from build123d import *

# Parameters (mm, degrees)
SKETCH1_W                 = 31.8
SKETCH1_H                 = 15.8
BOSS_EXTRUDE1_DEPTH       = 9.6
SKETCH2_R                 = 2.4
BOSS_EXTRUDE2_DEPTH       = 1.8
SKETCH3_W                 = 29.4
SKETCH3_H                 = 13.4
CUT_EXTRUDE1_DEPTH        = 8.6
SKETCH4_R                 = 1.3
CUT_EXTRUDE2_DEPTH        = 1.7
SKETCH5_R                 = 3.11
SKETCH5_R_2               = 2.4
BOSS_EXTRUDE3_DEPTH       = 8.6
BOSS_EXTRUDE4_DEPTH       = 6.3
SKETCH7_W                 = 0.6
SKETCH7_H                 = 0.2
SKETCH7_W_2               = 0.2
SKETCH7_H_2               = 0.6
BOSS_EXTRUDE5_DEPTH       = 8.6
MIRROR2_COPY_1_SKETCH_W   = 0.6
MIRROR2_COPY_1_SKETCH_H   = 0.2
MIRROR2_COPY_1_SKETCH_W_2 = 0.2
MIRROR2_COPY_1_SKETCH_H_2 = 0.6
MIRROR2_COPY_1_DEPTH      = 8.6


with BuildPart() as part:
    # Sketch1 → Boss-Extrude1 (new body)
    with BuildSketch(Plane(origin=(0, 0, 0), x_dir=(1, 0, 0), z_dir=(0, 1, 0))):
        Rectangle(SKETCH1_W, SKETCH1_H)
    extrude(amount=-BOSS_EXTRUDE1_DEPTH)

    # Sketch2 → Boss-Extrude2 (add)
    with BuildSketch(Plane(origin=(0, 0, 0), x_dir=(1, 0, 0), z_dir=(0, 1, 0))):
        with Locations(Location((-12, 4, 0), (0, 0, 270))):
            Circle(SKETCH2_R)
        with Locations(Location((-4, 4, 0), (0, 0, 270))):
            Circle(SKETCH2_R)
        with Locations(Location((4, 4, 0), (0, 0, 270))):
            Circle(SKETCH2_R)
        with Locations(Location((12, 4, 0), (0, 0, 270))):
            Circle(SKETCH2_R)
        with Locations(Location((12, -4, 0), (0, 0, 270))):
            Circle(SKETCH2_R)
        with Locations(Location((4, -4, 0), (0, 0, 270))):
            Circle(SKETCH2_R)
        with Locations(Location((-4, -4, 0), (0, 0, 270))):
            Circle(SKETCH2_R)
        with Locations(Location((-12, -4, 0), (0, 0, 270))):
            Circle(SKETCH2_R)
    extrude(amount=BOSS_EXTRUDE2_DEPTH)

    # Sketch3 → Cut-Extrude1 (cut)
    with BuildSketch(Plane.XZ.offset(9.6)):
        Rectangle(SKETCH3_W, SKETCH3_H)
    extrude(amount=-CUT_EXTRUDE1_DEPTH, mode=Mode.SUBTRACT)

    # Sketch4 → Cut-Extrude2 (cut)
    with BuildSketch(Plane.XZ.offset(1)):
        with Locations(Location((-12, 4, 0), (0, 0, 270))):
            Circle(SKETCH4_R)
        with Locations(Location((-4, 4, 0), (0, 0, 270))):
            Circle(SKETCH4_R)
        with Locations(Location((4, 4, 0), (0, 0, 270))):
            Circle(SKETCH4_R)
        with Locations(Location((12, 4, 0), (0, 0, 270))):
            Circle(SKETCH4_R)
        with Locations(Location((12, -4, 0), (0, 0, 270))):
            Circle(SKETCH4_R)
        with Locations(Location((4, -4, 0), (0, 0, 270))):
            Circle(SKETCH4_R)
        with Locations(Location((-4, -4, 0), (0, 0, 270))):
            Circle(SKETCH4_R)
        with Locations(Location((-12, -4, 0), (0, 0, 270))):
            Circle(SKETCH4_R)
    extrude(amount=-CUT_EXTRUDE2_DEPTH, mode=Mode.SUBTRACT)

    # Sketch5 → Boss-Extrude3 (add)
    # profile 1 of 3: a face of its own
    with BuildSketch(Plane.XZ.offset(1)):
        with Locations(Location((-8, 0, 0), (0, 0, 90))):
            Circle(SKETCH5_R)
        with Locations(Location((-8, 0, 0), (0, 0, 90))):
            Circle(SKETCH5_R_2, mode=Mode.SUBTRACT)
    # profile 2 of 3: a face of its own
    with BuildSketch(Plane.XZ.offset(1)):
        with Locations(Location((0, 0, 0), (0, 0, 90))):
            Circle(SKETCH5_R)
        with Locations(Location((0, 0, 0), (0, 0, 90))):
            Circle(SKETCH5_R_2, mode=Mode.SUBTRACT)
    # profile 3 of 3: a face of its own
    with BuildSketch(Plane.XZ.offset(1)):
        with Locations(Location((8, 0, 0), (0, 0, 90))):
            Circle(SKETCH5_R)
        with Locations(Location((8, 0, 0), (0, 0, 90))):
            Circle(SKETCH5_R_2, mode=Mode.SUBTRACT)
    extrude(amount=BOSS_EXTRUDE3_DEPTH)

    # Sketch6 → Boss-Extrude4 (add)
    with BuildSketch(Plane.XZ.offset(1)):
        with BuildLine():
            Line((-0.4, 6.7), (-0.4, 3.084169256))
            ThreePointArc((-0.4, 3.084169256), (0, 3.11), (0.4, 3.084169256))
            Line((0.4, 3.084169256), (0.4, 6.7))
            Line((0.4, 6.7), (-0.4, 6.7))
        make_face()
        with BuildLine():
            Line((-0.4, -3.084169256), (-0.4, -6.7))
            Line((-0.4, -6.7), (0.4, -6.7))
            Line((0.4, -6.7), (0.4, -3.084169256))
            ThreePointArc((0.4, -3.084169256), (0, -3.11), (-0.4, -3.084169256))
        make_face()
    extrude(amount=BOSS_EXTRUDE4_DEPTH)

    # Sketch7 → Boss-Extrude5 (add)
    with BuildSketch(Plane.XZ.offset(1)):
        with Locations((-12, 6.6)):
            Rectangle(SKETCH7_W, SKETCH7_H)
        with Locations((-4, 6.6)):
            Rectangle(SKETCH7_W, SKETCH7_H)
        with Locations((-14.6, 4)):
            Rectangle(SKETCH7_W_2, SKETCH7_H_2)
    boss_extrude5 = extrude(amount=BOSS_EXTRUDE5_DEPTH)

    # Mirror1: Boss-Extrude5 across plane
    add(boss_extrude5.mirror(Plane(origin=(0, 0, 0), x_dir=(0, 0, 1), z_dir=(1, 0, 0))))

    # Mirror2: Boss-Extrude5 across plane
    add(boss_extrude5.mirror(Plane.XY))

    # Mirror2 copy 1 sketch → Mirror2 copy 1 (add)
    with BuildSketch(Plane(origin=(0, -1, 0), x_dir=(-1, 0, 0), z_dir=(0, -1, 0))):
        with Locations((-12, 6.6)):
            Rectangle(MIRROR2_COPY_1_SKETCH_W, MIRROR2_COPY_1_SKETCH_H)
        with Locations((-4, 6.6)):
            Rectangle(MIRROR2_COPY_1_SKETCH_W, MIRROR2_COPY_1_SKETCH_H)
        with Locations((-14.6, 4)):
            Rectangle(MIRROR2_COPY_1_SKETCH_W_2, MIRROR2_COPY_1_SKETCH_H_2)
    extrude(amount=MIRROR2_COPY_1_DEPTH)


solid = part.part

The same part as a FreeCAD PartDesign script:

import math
import FreeCAD as App
import Part
import Sketcher
from FreeCAD import Vector
Q = App.Units.Quantity

doc = App.newDocument("Part")
body = doc.addObject("PartDesign::Body", "Body")

# Sketch on XZ plane
sketch1 = body.newObject("Sketcher::SketchObject", "Sketch")
sketch1.AttachmentSupport = (doc.getObject("XZ_Plane"), [""])
sketch1.MapMode = "FlatFace"
sketch1.addGeometry([
    Part.LineSegment(Vector(-16, -8, 0), Vector(-16, 8, 0)),
    Part.LineSegment(Vector(-16, 8, 0), Vector(16, 8, 0)),
    Part.LineSegment(Vector(16, 8, 0), Vector(16, -8, 0)),
    Part.LineSegment(Vector(16, -8, 0), Vector(-16, -8, 0)),
], False)
sketch1.addConstraint([
    Sketcher.Constraint("Coincident", 0, 2, 1, 1),
    Sketcher.Constraint("Coincident", 1, 2, 2, 1),
    Sketcher.Constraint("Coincident", 2, 2, 3, 1),
    Sketcher.Constraint("Coincident", 3, 2, 0, 1),
    Sketcher.Constraint("Vertical", 0),
    Sketcher.Constraint("Horizontal", 1),
    Sketcher.Constraint("Vertical", 2),
    Sketcher.Constraint("Horizontal", 3),
    Sketcher.Constraint("Symmetric", 0, 2, 2, 2, -1, 1),
    Sketcher.Constraint("DistanceX", 1, 1, 1, 2, Q("31.8 mm")),
    Sketcher.Constraint("DistanceY", 0, 1, 0, 2, Q("15.8 mm")),
])
pad1 = body.newObject("PartDesign::Pad", "Pad")
pad1.Profile = sketch1
pad1.Length = 9.6

# Sketch on XZ plane
sketch2 = body.newObject("Sketcher::SketchObject", "Sketch001")
sketch2.AttachmentSupport = (doc.getObject("XZ_Plane"), [""])
sketch2.MapMode = "FlatFace"
sketch2.addGeometry([
    Part.Circle(Vector(-12, -4, 0), Vector(0, 0, 1), 2.4),  # 0
    Part.Circle(Vector(-4, -4, 0), Vector(0, 0, 1), 2.4),  # 1
    Part.Circle(Vector(4, -4, 0), Vector(0, 0, 1), 2.4),  # 2
    Part.Circle(Vector(12, -4, 0), Vector(0, 0, 1), 2.4),  # 3
    Part.Circle(Vector(12, 4, 0), Vector(0, 0, 1), 2.4),  # 4
    Part.Circle(Vector(4, 4, 0), Vector(0, 0, 1), 2.4),  # 5
    Part.Circle(Vector(-4, 4, 0), Vector(0, 0, 1), 2.4),  # 6
    Part.Circle(Vector(-12, 4, 0), Vector(0, 0, 1), 2.4),  # 7
], False)
sketch2.addConstraint([
    Sketcher.Constraint("Equal", 0, 1),
    Sketcher.Constraint("Equal", 1, 2),
    Sketcher.Constraint("Equal", 2, 3),
    Sketcher.Constraint("Equal", 3, 4),
    Sketcher.Constraint("Equal", 4, 5),
    Sketcher.Constraint("Equal", 5, 6),
    Sketcher.Constraint("Equal", 6, 7),
    Sketcher.Constraint("Symmetric", 0, 3, 4, 3, -1, 1),
    Sketcher.Constraint("Symmetric", 1, 3, 5, 3, -1, 1),
    Sketcher.Constraint("Symmetric", 2, 3, 6, 3, -1, 1),
    Sketcher.Constraint("Symmetric", 3, 3, 7, 3, -1, 1),
    Sketcher.Constraint("Symmetric", 1, 3, 2, 3, -2),
    Sketcher.Constraint("Symmetric", 0, 3, 3, 3, -2),
    Sketcher.Constraint("Horizontal", 0, 3, 1, 3),
    Sketcher.Constraint("Diameter", 0, Q("4.8 mm")),
    Sketcher.Constraint("DistanceX", 0, 3, -1, 1, Q("12 mm")),
    Sketcher.Constraint("DistanceY", 0, 3, -1, 1, Q("4 mm")),
    Sketcher.Constraint("DistanceX", 1, 3, -1, 1, Q("4 mm")),
])
pad2 = body.newObject("PartDesign::Pad", "Pad001")
pad2.Profile = sketch2
pad2.Length = 1.8
pad2.Reversed = True

# Sketch on XZ plane
sketch3 = body.newObject("Sketcher::SketchObject", "Sketch002")
sketch3.AttachmentSupport = (doc.getObject("XZ_Plane"), [""])
sketch3.MapMode = "FlatFace"
sketch3.AttachmentOffset = App.Placement(Vector(0, 0, 9.6), App.Rotation())
sketch3.addGeometry([
    Part.LineSegment(Vector(-15, 7, 0), Vector(-15, -7, 0)),
    Part.LineSegment(Vector(-15, -7, 0), Vector(15, -7, 0)),
    Part.LineSegment(Vector(15, -7, 0), Vector(15, 7, 0)),
    Part.LineSegment(Vector(15, 7, 0), Vector(-15, 7, 0)),
], False)
sketch3.addConstraint([
    Sketcher.Constraint("Coincident", 0, 2, 1, 1),
    Sketcher.Constraint("Coincident", 1, 2, 2, 1),
    Sketcher.Constraint("Coincident", 2, 2, 3, 1),
    Sketcher.Constraint("Coincident", 3, 2, 0, 1),
    Sketcher.Constraint("Vertical", 0),
    Sketcher.Constraint("Horizontal", 1),
    Sketcher.Constraint("Vertical", 2),
    Sketcher.Constraint("Horizontal", 3),
    Sketcher.Constraint("Symmetric", 0, 2, 2, 2, -1, 1),
    Sketcher.Constraint("DistanceX", 1, 1, 1, 2, Q("29.4 mm")),
    Sketcher.Constraint("DistanceY", 0, 2, 0, 1, Q("13.4 mm")),
])
pocket1 = body.newObject("PartDesign::Pocket", "Pocket")
pocket1.Profile = sketch3
pocket1.Length = 8.6

# Sketch on XZ plane
sketch4 = body.newObject("Sketcher::SketchObject", "Sketch003")
sketch4.AttachmentSupport = (doc.getObject("XZ_Plane"), [""])
sketch4.MapMode = "FlatFace"
sketch4.AttachmentOffset = App.Placement(Vector(0, 0, 1), App.Rotation())
sketch4.addGeometry([
    Part.Circle(Vector(-12, 4, 0), Vector(0, 0, 1), 1.3),  # 0
    Part.Circle(Vector(-4, 4, 0), Vector(0, 0, 1), 1.3),  # 1
    Part.Circle(Vector(4, 4, 0), Vector(0, 0, 1), 1.3),  # 2
    Part.Circle(Vector(12, 4, 0), Vector(0, 0, 1), 1.3),  # 3
    Part.Circle(Vector(12, -4, 0), Vector(0, 0, 1), 1.3),  # 4
    Part.Circle(Vector(4, -4, 0), Vector(0, 0, 1), 1.3),  # 5
    Part.Circle(Vector(-4, -4, 0), Vector(0, 0, 1), 1.3),  # 6
    Part.Circle(Vector(-12, -4, 0), Vector(0, 0, 1), 1.3),  # 7
], False)
sketch4.addConstraint([
    Sketcher.Constraint("Equal", 0, 1),
    Sketcher.Constraint("Equal", 1, 2),
    Sketcher.Constraint("Equal", 2, 3),
    Sketcher.Constraint("Equal", 3, 4),
    Sketcher.Constraint("Equal", 4, 5),
    Sketcher.Constraint("Equal", 5, 6),
    Sketcher.Constraint("Equal", 6, 7),
    Sketcher.Constraint("Symmetric", 0, 3, 4, 3, -1, 1),
    Sketcher.Constraint("Symmetric", 1, 3, 5, 3, -1, 1),
    Sketcher.Constraint("Symmetric", 2, 3, 6, 3, -1, 1),
    Sketcher.Constraint("Symmetric", 3, 3, 7, 3, -1, 1),
    Sketcher.Constraint("Symmetric", 1, 3, 2, 3, -2),
    Sketcher.Constraint("Symmetric", 0, 3, 3, 3, -2),
    Sketcher.Constraint("Horizontal", 0, 3, 1, 3),
    Sketcher.Constraint("Diameter", 0, Q("2.6 mm")),
    Sketcher.Constraint("DistanceX", 0, 3, -1, 1, Q("12 mm")),
    Sketcher.Constraint("DistanceY", -1, 1, 0, 3, Q("4 mm")),
    Sketcher.Constraint("DistanceX", 1, 3, -1, 1, Q("4 mm")),
])
pocket2 = body.newObject("PartDesign::Pocket", "Pocket001")
pocket2.Profile = sketch4
pocket2.Length = 1.7

# Sketch on XZ plane
sketch5 = body.newObject("Sketcher::SketchObject", "Sketch004")
sketch5.AttachmentSupport = (doc.getObject("XZ_Plane"), [""])
sketch5.MapMode = "FlatFace"
sketch5.AttachmentOffset = App.Placement(Vector(0, 0, 1), App.Rotation())
sketch5.addGeometry([
    Part.Circle(Vector(-8, 0, 0), Vector(0, 0, 1), 3.1),  # 0
    Part.Circle(Vector(-8, 0, 0), Vector(0, 0, 1), 2.4),  # 1
    Part.Circle(Vector(0, 0, 0), Vector(0, 0, 1), 3.1),  # 2
    Part.Circle(Vector(0, 0, 0), Vector(0, 0, 1), 2.4),  # 3
    Part.Circle(Vector(8, 0, 0), Vector(0, 0, 1), 3.1),  # 4
    Part.Circle(Vector(8, 0, 0), Vector(0, 0, 1), 2.4),  # 5
], False)
sketch5.addConstraint([
    Sketcher.Constraint("Coincident", 2, 3, -1, 1),
    Sketcher.Constraint("Coincident", 3, 3, -1, 1),
    Sketcher.Constraint("Coincident", 1, 3, 0, 3),
    Sketcher.Constraint("Coincident", 5, 3, 4, 3),
    Sketcher.Constraint("Equal", 0, 2),
    Sketcher.Constraint("Equal", 1, 3),
    Sketcher.Constraint("Equal", 2, 4),
    Sketcher.Constraint("Equal", 3, 5),
    Sketcher.Constraint("Symmetric", 0, 3, 4, 3, -1, 1),
    Sketcher.Constraint("PointOnObject", 0, 3, -1),
    Sketcher.Constraint("Diameter", 1, Q("4.8 mm")),
    Sketcher.Constraint("Diameter", 0, Q("6.22 mm")),
    Sketcher.Constraint("DistanceX", 0, 3, -1, 1, Q("8 mm")),
])
pad3 = body.newObject("PartDesign::Pad", "Pad002")
pad3.Profile = sketch5
pad3.Length = 8.6

# Sketch on XZ plane
sketch6 = body.newObject("Sketcher::SketchObject", "Sketch005")
sketch6.AttachmentSupport = (doc.getObject("XZ_Plane"), [""])
sketch6.MapMode = "FlatFace"
sketch6.AttachmentOffset = App.Placement(Vector(0, 0, 1), App.Rotation())
sketch6.addGeometry([
    Part.LineSegment(Vector(-0.4, 6.7, 0), Vector(-0.4, 3.1, 0)),  # 0
    Part.ArcOfCircle(Part.Circle(Vector(0, 0, 0), Vector(0, 0, 1), 3.1), math.radians(82.61), math.radians(97.39)),  # 1
    Part.LineSegment(Vector(0.4, 3.1, 0), Vector(0.4, 6.7, 0)),  # 2
    Part.LineSegment(Vector(0.4, 6.7, 0), Vector(-0.4, 6.7, 0)),  # 3
    Part.LineSegment(Vector(-0.4, -3.1, 0), Vector(-0.4, -6.7, 0)),  # 4
    Part.LineSegment(Vector(-0.4, -6.7, 0), Vector(0.4, -6.7, 0)),  # 5
    Part.LineSegment(Vector(0.4, -6.7, 0), Vector(0.4, -3.1, 0)),  # 6
    Part.ArcOfCircle(Part.Circle(Vector(0, 0, 0), Vector(0, 0, 1), 3.1), math.radians(-97.39), math.radians(-82.61)),  # 7
], False)
sketch6.addConstraint([
    Sketcher.Constraint("Coincident", 0, 2, 1, 2),
    Sketcher.Constraint("Coincident", 1, 1, 2, 1),
    Sketcher.Constraint("Coincident", 2, 2, 3, 1),
    Sketcher.Constraint("Coincident", 3, 2, 0, 1),
    Sketcher.Constraint("Coincident", 4, 2, 5, 1),
    Sketcher.Constraint("Coincident", 5, 2, 6, 1),
    Sketcher.Constraint("Coincident", 6, 2, 7, 2),
    Sketcher.Constraint("Coincident", 7, 1, 4, 1),
    Sketcher.Constraint("Vertical", 0),
    Sketcher.Constraint("Vertical", 2),
    Sketcher.Constraint("Horizontal", 3),
    Sketcher.Constraint("Vertical", 4),
    Sketcher.Constraint("Horizontal", 5),
    Sketcher.Constraint("Vertical", 6),
    Sketcher.Constraint("Coincident", 1, 3, -1, 1),
    Sketcher.Constraint("Coincident", 7, 3, -1, 1),
    Sketcher.Constraint("Equal", 1, 7),
    Sketcher.Constraint("Symmetric", 2, 2, 4, 2, -1, 1),
    Sketcher.Constraint("Horizontal", 0, 2, 1, 1),
    Sketcher.Constraint("Horizontal", 6, 2, 7, 1),
    Sketcher.Constraint("Radius", 1, Q("3.11 mm")),
    Sketcher.Constraint("DistanceX", 3, 2, 3, 1, Q("0.8 mm")),
    Sketcher.Constraint("DistanceY", -1, 1, 2, 2, Q("6.7 mm")),
])
pad4 = body.newObject("PartDesign::Pad", "Pad003")
pad4.Profile = sketch6
pad4.Length = 6.3

# Sketch on XZ plane
sketch7 = body.newObject("Sketcher::SketchObject", "Sketch006")
sketch7.AttachmentSupport = (doc.getObject("XZ_Plane"), [""])
sketch7.MapMode = "FlatFace"
sketch7.AttachmentOffset = App.Placement(Vector(0, 0, 1), App.Rotation())
sketch7.addGeometry([
    Part.LineSegment(Vector(-12.3, 6.7, 0), Vector(-12.3, 6.5, 0)),  # 0
    Part.LineSegment(Vector(-12.3, 6.5, 0), Vector(-11.7, 6.5, 0)),  # 1
    Part.LineSegment(Vector(-11.7, 6.5, 0), Vector(-11.7, 6.7, 0)),  # 2
    Part.LineSegment(Vector(-11.7, 6.7, 0), Vector(-12.3, 6.7, 0)),  # 3
    Part.LineSegment(Vector(-4.3, 6.7, 0), Vector(-4.3, 6.5, 0)),  # 4
    Part.LineSegment(Vector(-4.3, 6.5, 0), Vector(-3.7, 6.5, 0)),  # 5
    Part.LineSegment(Vector(-3.7, 6.5, 0), Vector(-3.7, 6.7, 0)),  # 6
    Part.LineSegment(Vector(-3.7, 6.7, 0), Vector(-4.3, 6.7, 0)),  # 7
    Part.LineSegment(Vector(-14.7, 4.3, 0), Vector(-14.7, 3.7, 0)),  # 8
    Part.LineSegment(Vector(-14.7, 3.7, 0), Vector(-14.5, 3.7, 0)),  # 9
    Part.LineSegment(Vector(-14.5, 3.7, 0), Vector(-14.5, 4.3, 0)),  # 10
    Part.LineSegment(Vector(-14.5, 4.3, 0), Vector(-14.7, 4.3, 0)),  # 11
], False)
sketch7.addConstraint([
    Sketcher.Constraint("Coincident", 0, 2, 1, 1),
    Sketcher.Constraint("Coincident", 1, 2, 2, 1),
    Sketcher.Constraint("Coincident", 2, 2, 3, 1),
    Sketcher.Constraint("Coincident", 3, 2, 0, 1),
    Sketcher.Constraint("Coincident", 4, 2, 5, 1),
    Sketcher.Constraint("Coincident", 5, 2, 6, 1),
    Sketcher.Constraint("Coincident", 6, 2, 7, 1),
    Sketcher.Constraint("Coincident", 7, 2, 4, 1),
    Sketcher.Constraint("Coincident", 8, 2, 9, 1),
    Sketcher.Constraint("Coincident", 9, 2, 10, 1),
    Sketcher.Constraint("Coincident", 10, 2, 11, 1),
    Sketcher.Constraint("Coincident", 11, 2, 8, 1),
    Sketcher.Constraint("Vertical", 0),
    Sketcher.Constraint("Horizontal", 1),
    Sketcher.Constraint("Vertical", 2),
    Sketcher.Constraint("Horizontal", 3),
    Sketcher.Constraint("Vertical", 4),
    Sketcher.Constraint("Horizontal", 5),
    Sketcher.Constraint("Vertical", 6),
    Sketcher.Constraint("Horizontal", 7),
    Sketcher.Constraint("Vertical", 8),
    Sketcher.Constraint("Horizontal", 9),
    Sketcher.Constraint("Vertical", 10),
    Sketcher.Constraint("Horizontal", 11),
    Sketcher.Constraint("Horizontal", 1, 2, 4, 2),
    Sketcher.Constraint("Horizontal", 3, 2, 6, 2),
    Sketcher.Constraint("Equal", 3, 5),
    Sketcher.Constraint("Equal", 11, 0),
    Sketcher.Constraint("Equal", 7, 8),
    Sketcher.Constraint("DistanceX", 1, 1, 1, 2, Q("0.6 mm")),
    Sketcher.Constraint("DistanceX", 9, 1, 9, 2, Q("0.2 mm")),
    Sketcher.Constraint("DistanceX", 0, 2, 4, 2, Q("8 mm")),
    Sketcher.Constraint("DistanceY", 8, 2, 3, 2, Q("3 mm")),
    Sketcher.Constraint("DistanceX", 8, 2, 1, 2, Q("3 mm")),
    Sketcher.Constraint("DistanceX", 0, 2, -1, 1, Q("12.3 mm")),
    Sketcher.Constraint("DistanceY", -1, 1, 0, 2, Q("6.5 mm")),
])
pad5 = body.newObject("PartDesign::Pad", "Pad004")
pad5.Profile = sketch7
pad5.Length = 8.6
doc.recompute()

mirrored = body.newObject("PartDesign::Mirrored", "Mirrored")
mirrored.Originals = [pad5]
mirrored.MirrorPlane = (doc.getObject("YZ_Plane"), [""])
body.Tip = mirrored
doc.recompute()

mirrored2 = body.newObject("PartDesign::Mirrored", "Mirrored001")
mirrored2.Originals = [pad5]
mirrored2.MirrorPlane = (doc.getObject("XY_Plane"), [""])
body.Tip = mirrored2

# Sketch on XZ plane
sketch8 = body.newObject("Sketcher::SketchObject", "Sketch007")
sketch8.AttachmentSupport = (doc.getObject("XZ_Plane"), [""])
sketch8.MapMode = "FlatFace"
sketch8.AttachmentOffset = App.Placement(Vector(0, 0, 1), App.Rotation())
sketch8.addGeometry([
    Part.LineSegment(Vector(12.3, -6.7, 0), Vector(12.3, -6.5, 0)),  # 0
    Part.LineSegment(Vector(12.3, -6.5, 0), Vector(11.7, -6.5, 0)),  # 1
    Part.LineSegment(Vector(11.7, -6.5, 0), Vector(11.7, -6.7, 0)),  # 2
    Part.LineSegment(Vector(11.7, -6.7, 0), Vector(12.3, -6.7, 0)),  # 3
    Part.LineSegment(Vector(4.3, -6.7, 0), Vector(4.3, -6.5, 0)),  # 4
    Part.LineSegment(Vector(4.3, -6.5, 0), Vector(3.7, -6.5, 0)),  # 5
    Part.LineSegment(Vector(3.7, -6.5, 0), Vector(3.7, -6.7, 0)),  # 6
    Part.LineSegment(Vector(3.7, -6.7, 0), Vector(4.3, -6.7, 0)),  # 7
    Part.LineSegment(Vector(14.7, -4.3, 0), Vector(14.7, -3.7, 0)),  # 8
    Part.LineSegment(Vector(14.7, -3.7, 0), Vector(14.5, -3.7, 0)),  # 9
    Part.LineSegment(Vector(14.5, -3.7, 0), Vector(14.5, -4.3, 0)),  # 10
    Part.LineSegment(Vector(14.5, -4.3, 0), Vector(14.7, -4.3, 0)),  # 11
], False)
sketch8.addConstraint([
    Sketcher.Constraint("Coincident", 0, 2, 1, 1),
    Sketcher.Constraint("Coincident", 1, 2, 2, 1),
    Sketcher.Constraint("Coincident", 2, 2, 3, 1),
    Sketcher.Constraint("Coincident", 3, 2, 0, 1),
    Sketcher.Constraint("Coincident", 4, 2, 5, 1),
    Sketcher.Constraint("Coincident", 5, 2, 6, 1),
    Sketcher.Constraint("Coincident", 6, 2, 7, 1),
    Sketcher.Constraint("Coincident", 7, 2, 4, 1),
    Sketcher.Constraint("Coincident", 8, 2, 9, 1),
    Sketcher.Constraint("Coincident", 9, 2, 10, 1),
    Sketcher.Constraint("Coincident", 10, 2, 11, 1),
    Sketcher.Constraint("Coincident", 11, 2, 8, 1),
    Sketcher.Constraint("Vertical", 0),
    Sketcher.Constraint("Horizontal", 1),
    Sketcher.Constraint("Vertical", 2),
    Sketcher.Constraint("Horizontal", 3),
    Sketcher.Constraint("Vertical", 4),
    Sketcher.Constraint("Horizontal", 5),
    Sketcher.Constraint("Vertical", 6),
    Sketcher.Constraint("Horizontal", 7),
    Sketcher.Constraint("Vertical", 8),
    Sketcher.Constraint("Horizontal", 9),
    Sketcher.Constraint("Vertical", 10),
    Sketcher.Constraint("Horizontal", 11),
    Sketcher.Constraint("Horizontal", 1, 2, 4, 2),
    Sketcher.Constraint("Horizontal", 3, 2, 6, 2),
    Sketcher.Constraint("Equal", 3, 5),
    Sketcher.Constraint("Equal", 11, 0),
    Sketcher.Constraint("Equal", 7, 8),
    Sketcher.Constraint("DistanceX", 1, 2, 1, 1, Q("0.6 mm")),
    Sketcher.Constraint("DistanceX", 9, 2, 9, 1, Q("0.2 mm")),
    Sketcher.Constraint("DistanceX", 4, 2, 0, 2, Q("8 mm")),
    Sketcher.Constraint("DistanceY", 3, 2, 8, 2, Q("3 mm")),
    Sketcher.Constraint("DistanceX", 1, 2, 8, 2, Q("3 mm")),
    Sketcher.Constraint("DistanceX", -1, 1, 0, 2, Q("12.3 mm")),
    Sketcher.Constraint("DistanceY", 0, 2, -1, 1, Q("6.5 mm")),
])
pad6 = body.newObject("PartDesign::Pad", "Pad005")
pad6.Profile = sketch8
pad6.Length = 8.6

doc.recompute()
